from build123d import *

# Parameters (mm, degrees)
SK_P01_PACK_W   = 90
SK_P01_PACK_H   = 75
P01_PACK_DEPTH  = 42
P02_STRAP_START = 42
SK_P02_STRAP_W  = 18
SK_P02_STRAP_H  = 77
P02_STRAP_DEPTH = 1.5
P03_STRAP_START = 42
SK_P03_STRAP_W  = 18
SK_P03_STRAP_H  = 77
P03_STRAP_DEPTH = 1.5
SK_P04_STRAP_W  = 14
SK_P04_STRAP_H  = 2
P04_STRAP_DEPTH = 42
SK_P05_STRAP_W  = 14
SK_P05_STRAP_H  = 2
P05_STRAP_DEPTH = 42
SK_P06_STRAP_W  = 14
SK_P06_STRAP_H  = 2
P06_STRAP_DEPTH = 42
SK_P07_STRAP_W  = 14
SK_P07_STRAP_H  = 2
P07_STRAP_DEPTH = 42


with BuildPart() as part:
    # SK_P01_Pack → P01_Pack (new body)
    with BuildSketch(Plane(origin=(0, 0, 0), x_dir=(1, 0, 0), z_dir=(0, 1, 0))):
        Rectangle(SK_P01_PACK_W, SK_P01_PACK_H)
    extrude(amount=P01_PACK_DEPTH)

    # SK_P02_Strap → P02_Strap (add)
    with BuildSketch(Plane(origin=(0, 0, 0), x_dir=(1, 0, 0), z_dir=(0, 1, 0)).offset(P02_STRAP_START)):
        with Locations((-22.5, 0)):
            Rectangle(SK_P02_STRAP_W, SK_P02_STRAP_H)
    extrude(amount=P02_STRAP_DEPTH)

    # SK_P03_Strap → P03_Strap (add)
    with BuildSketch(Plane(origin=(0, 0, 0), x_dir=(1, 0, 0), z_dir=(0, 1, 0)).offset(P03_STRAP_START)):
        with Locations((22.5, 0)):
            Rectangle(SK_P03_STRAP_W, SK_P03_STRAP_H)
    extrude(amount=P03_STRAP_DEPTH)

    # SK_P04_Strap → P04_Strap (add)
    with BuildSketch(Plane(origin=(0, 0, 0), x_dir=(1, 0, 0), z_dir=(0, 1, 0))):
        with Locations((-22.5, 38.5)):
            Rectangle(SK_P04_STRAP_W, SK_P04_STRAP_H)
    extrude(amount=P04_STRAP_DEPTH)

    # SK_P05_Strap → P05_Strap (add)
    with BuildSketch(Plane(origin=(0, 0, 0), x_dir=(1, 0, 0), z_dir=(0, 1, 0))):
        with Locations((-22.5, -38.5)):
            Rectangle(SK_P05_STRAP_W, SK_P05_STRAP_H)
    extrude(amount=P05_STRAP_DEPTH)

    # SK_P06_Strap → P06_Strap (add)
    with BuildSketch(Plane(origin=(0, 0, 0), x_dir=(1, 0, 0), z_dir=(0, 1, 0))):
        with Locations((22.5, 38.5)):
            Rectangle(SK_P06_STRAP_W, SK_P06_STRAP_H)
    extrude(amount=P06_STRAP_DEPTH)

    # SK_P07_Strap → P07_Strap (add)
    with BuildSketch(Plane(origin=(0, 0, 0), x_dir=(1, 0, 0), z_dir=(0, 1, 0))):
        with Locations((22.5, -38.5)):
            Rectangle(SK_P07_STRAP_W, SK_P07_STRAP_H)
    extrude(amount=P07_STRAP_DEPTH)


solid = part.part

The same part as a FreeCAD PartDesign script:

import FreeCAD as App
import Part
import Sketcher

V = App.Vector
Q = App.Units.Quantity

doc = App.newDocument("Part")
body = doc.addObject("PartDesign::Body", "Body")

# Sketch on XZ plane
sketch1 = body.newObject("Sketcher::SketchObject", "Sketch")
sketch1.AttachmentSupport = (doc.getObject("XZ_Plane"), [""])
sketch1.MapMode = "FlatFace"
sketch1.addGeometry([
    Part.LineSegment(V(-45, -38, 0), V(-45, 38, 0)),
    Part.LineSegment(V(-45, 38, 0), V(45, 38, 0)),
    Part.LineSegment(V(45, 38, 0), V(45, -38, 0)),
    Part.LineSegment(V(45, -38, 0), V(-45, -38, 0)),
], False)
sketch1.addConstraint([
    Sketcher.Constraint("Coincident", 0, 2, 1, 1),
    Sketcher.Constraint("Coincident", 1, 2, 2, 1),
    Sketcher.Constraint("Coincident", 2, 2, 3, 1),
    Sketcher.Constraint("Coincident", 3, 2, 0, 1),
    Sketcher.Constraint("Vertical", 0),
    Sketcher.Constraint("Horizontal", 1),
    Sketcher.Constraint("Vertical", 2),
    Sketcher.Constraint("Horizontal", 3),
    Sketcher.Constraint("Symmetric", 0, 2, 2, 2, -1, 1),
    Sketcher.Constraint("DistanceX", 1, 1, 1, 2, Q("90 mm")),
    Sketcher.Constraint("DistanceY", 0, 1, 0, 2, Q("75 mm")),
])
pad1 = body.newObject("PartDesign::Pad", "Pad")
pad1.Profile = sketch1
pad1.Length = 42
pad1.Reversed = True

# Sketch on XZ plane
sketch2 = body.newObject("Sketcher::SketchObject", "Sketch001")
sketch2.AttachmentSupport = (doc.getObject("XZ_Plane"), [""])
sketch2.MapMode = "FlatFace"
sketch2.AttachmentOffset = App.Placement(V(0, 0, -42), App.Rotation())
sketch2.addGeometry([
    Part.LineSegment(V(-32, -38, 0), V(-32, 38, 0)),
    Part.LineSegment(V(-32, 38, 0), V(-14, 38, 0)),
    Part.LineSegment(V(-14, 38, 0), V(-14, -38, 0)),
    Part.LineSegment(V(-14, -38, 0), V(-32, -38, 0)),
], False)
sketch2.addConstraint([
    Sketcher.Constraint("Coincident", 0, 2, 1, 1),
    Sketcher.Constraint("Coincident", 1, 2, 2, 1),
    Sketcher.Constraint("Coincident", 2, 2, 3, 1),
    Sketcher.Constraint("Coincident", 3, 2, 0, 1),
    Sketcher.Constraint("Vertical", 0),
    Sketcher.Constraint("Horizontal", 1),
    Sketcher.Constraint("Vertical", 2),
    Sketcher.Constraint("Horizontal", 3),
    Sketcher.Constraint("DistanceX", 1, 1, 1, 2, Q("18 mm")),
    Sketcher.Constraint("DistanceY", 0, 1, 0, 2, Q("77 mm")),
    Sketcher.Constraint("DistanceX", 0, 2, -1, 1, Q("31.5 mm")),
    Sketcher.Constraint("DistanceY", -1, 1, 0, 2, Q("38.5 mm")),
])
pad2 = body.newObject("PartDesign::Pad", "Pad001")
pad2.Profile = sketch2
pad2.Length = 1.5
pad2.Reversed = True

# Sketch on XZ plane
sketch3 = body.newObject("Sketcher::SketchObject", "Sketch002")
sketch3.AttachmentSupport = (doc.getObject("XZ_Plane"), [""])
sketch3.MapMode = "FlatFace"
sketch3.AttachmentOffset = App.Placement(V(0, 0, -42), App.Rotation())
sketch3.addGeometry([
    Part.LineSegment(V(14, -38, 0), V(14, 38, 0)),
    Part.LineSegment(V(14, 38, 0), V(32, 38, 0)),
    Part.LineSegment(V(32, 38, 0), V(32, -38, 0)),
    Part.LineSegment(V(32, -38, 0), V(14, -38, 0)),
], False)
sketch3.addConstraint([
    Sketcher.Constraint("Coincident", 0, 2, 1, 1),
    Sketcher.Constraint("Coincident", 1, 2, 2, 1),
    Sketcher.Constraint("Coincident", 2, 2, 3, 1),
    Sketcher.Constraint("Coincident", 3, 2, 0, 1),
    Sketcher.Constraint("Vertical", 0),
    Sketcher.Constraint("Horizontal", 1),
    Sketcher.Constraint("Vertical", 2),
    Sketcher.Constraint("Horizontal", 3),
    Sketcher.Constraint("DistanceX", 1, 1, 1, 2, Q("18 mm")),
    Sketcher.Constraint("DistanceY", 0, 1, 0, 2, Q("77 mm")),
    Sketcher.Constraint("DistanceX", -1, 1, 0, 2, Q("13.5 mm")),
    Sketcher.Constraint("DistanceY", -1, 1, 0, 2, Q("38.5 mm")),
])
pad3 = body.newObject("PartDesign::Pad", "Pad002")
pad3.Profile = sketch3
pad3.Length = 1.5
pad3.Reversed = True

# Sketch on XZ plane
sketch4 = body.newObject("Sketcher::SketchObject", "Sketch003")
sketch4.AttachmentSupport = (doc.getObject("XZ_Plane"), [""])
sketch4.MapMode = "FlatFace"
sketch4.addGeometry([
    Part.LineSegment(V(-29.5, -39.5, 0), V(-29.5, -37.5, 0)),
    Part.LineSegment(V(-29.5, -37.5, 0), V(-15.5, -37.5, 0)),
    Part.LineSegment(V(-15.5, -37.5, 0), V(-15.5, -39.5, 0)),
    Part.LineSegment(V(-15.5, -39.5, 0), V(-29.5, -39.5, 0)),
], False)
sketch4.addConstraint([
    Sketcher.Constraint("Coincident", 0, 2, 1, 1),
    Sketcher.Constraint("Coincident", 1, 2, 2, 1),
    Sketcher.Constraint("Coincident", 2, 2, 3, 1),
    Sketcher.Constraint("Coincident", 3, 2, 0, 1),
    Sketcher.Constraint("Vertical", 0),
    Sketcher.Constraint("Horizontal", 1),
    Sketcher.Constraint("Vertical", 2),
    Sketcher.Constraint("Horizontal", 3),
    Sketcher.Constraint("DistanceX", 1, 1, 1, 2, Q("14 mm")),
    Sketcher.Constraint("DistanceY", 0, 1, 0, 2, Q("2 mm")),
    Sketcher.Constraint("DistanceX", 0, 2, -1, 1, Q("29.5 mm")),
    Sketcher.Constraint("DistanceY", 0, 2, -1, 1, Q("37.5 mm")),
])
pad4 = body.newObject("PartDesign::Pad", "Pad003")
pad4.Profile = sketch4
pad4.Length = 42
pad4.Reversed = True

# Sketch on XZ plane
sketch5 = body.newObject("Sketcher::SketchObject", "Sketch004")
sketch5.AttachmentSupport = (doc.getObject("XZ_Plane"), [""])
sketch5.MapMode = "FlatFace"
sketch5.addGeometry([
    Part.LineSegment(V(-29.5, 37.5, 0), V(-29.5, 39.5, 0)),
    Part.LineSegment(V(-29.5, 39.5, 0), V(-15.5, 39.5, 0)),
    Part.LineSegment(V(-15.5, 39.5, 0), V(-15.5, 37.5, 0)),
    Part.LineSegment(V(-15.5, 37.5, 0), V(-29.5, 37.5, 0)),
], False)
sketch5.addConstraint([
    Sketcher.Constraint("Coincident", 0, 2, 1, 1),
    Sketcher.Constraint("Coincident", 1, 2, 2, 1),
    Sketcher.Constraint("Coincident", 2, 2, 3, 1),
    Sketcher.Constraint("Coincident", 3, 2, 0, 1),
    Sketcher.Constraint("Vertical", 0),
    Sketcher.Constraint("Horizontal", 1),
    Sketcher.Constraint("Vertical", 2),
    Sketcher.Constraint("Horizontal", 3),
    Sketcher.Constraint("DistanceX", 1, 1, 1, 2, Q("14 mm")),
    Sketcher.Constraint("DistanceY", 0, 1, 0, 2, Q("2 mm")),
    Sketcher.Constraint("DistanceX", 0, 2, -1, 1, Q("29.5 mm")),
    Sketcher.Constraint("DistanceY", -1, 1, 0, 2, Q("39.5 mm")),
])
pad5 = body.newObject("PartDesign::Pad", "Pad004")
pad5.Profile = sketch5
pad5.Length = 42
pad5.Reversed = True

# Sketch on XZ plane
sketch6 = body.newObject("Sketcher::SketchObject", "Sketch005")
sketch6.AttachmentSupport = (doc.getObject("XZ_Plane"), [""])
sketch6.MapMode = "FlatFace"
sketch6.addGeometry([
    Part.LineSegment(V(15.5, -39.5, 0), V(15.5, -37.5, 0)),
    Part.LineSegment(V(15.5, -37.5, 0), V(29.5, -37.5, 0)),
    Part.LineSegment(V(29.5, -37.5, 0), V(29.5, -39.5, 0)),
    Part.LineSegment(V(29.5, -39.5, 0), V(15.5, -39.5, 0)),
], False)
sketch6.addConstraint([
    Sketcher.Constraint("Coincident", 0, 2, 1, 1),
    Sketcher.Constraint("Coincident", 1, 2, 2, 1),
    Sketcher.Constraint("Coincident", 2, 2, 3, 1),
    Sketcher.Constraint("Coincident", 3, 2, 0, 1),
    Sketcher.Constraint("Vertical", 0),
    Sketcher.Constraint("Horizontal", 1),
    Sketcher.Constraint("Vertical", 2),
    Sketcher.Constraint("Horizontal", 3),
    Sketcher.Constraint("DistanceX", 1, 1, 1, 2, Q("14 mm")),
    Sketcher.Constraint("DistanceY", 0, 1, 0, 2, Q("2 mm")),
    Sketcher.Constraint("DistanceX", -1, 1, 0, 2, Q("15.5 mm")),
    Sketcher.Constraint("DistanceY", 0, 2, -1, 1, Q("37.5 mm")),
])
pad6 = body.newObject("PartDesign::Pad", "Pad005")
pad6.Profile = sketch6
pad6.Length = 42
pad6.Reversed = True

# Sketch on XZ plane
sketch7 = body.newObject("Sketcher::SketchObject", "Sketch006")
sketch7.AttachmentSupport = (doc.getObject("XZ_Plane"), [""])
sketch7.MapMode = "FlatFace"
sketch7.addGeometry([
    Part.LineSegment(V(15.5, 37.5, 0), V(15.5, 39.5, 0)),
    Part.LineSegment(V(15.5, 39.5, 0), V(29.5, 39.5, 0)),
    Part.LineSegment(V(29.5, 39.5, 0), V(29.5, 37.5, 0)),
    Part.LineSegment(V(29.5, 37.5, 0), V(15.5, 37.5, 0)),
], False)
sketch7.addConstraint([
    Sketcher.Constraint("Coincident", 0, 2, 1, 1),
    Sketcher.Constraint("Coincident", 1, 2, 2, 1),
    Sketcher.Constraint("Coincident", 2, 2, 3, 1),
    Sketcher.Constraint("Coincident", 3, 2, 0, 1),
    Sketcher.Constraint("Vertical", 0),
    Sketcher.Constraint("Horizontal", 1),
    Sketcher.Constraint("Vertical", 2),
    Sketcher.Constraint("Horizontal", 3),
    Sketcher.Constraint("DistanceX", 1, 1, 1, 2, Q("14 mm")),
    Sketcher.Constraint("DistanceY", 0, 1, 0, 2, Q("2 mm")),
    Sketcher.Constraint("DistanceX", -1, 1, 0, 2, Q("15.5 mm")),
    Sketcher.Constraint("DistanceY", -1, 1, 0, 2, Q("39.5 mm")),
])
pad7 = body.newObject("PartDesign::Pad", "Pad006")
pad7.Profile = sketch7
pad7.Length = 42
pad7.Reversed = True

doc.recompute()
